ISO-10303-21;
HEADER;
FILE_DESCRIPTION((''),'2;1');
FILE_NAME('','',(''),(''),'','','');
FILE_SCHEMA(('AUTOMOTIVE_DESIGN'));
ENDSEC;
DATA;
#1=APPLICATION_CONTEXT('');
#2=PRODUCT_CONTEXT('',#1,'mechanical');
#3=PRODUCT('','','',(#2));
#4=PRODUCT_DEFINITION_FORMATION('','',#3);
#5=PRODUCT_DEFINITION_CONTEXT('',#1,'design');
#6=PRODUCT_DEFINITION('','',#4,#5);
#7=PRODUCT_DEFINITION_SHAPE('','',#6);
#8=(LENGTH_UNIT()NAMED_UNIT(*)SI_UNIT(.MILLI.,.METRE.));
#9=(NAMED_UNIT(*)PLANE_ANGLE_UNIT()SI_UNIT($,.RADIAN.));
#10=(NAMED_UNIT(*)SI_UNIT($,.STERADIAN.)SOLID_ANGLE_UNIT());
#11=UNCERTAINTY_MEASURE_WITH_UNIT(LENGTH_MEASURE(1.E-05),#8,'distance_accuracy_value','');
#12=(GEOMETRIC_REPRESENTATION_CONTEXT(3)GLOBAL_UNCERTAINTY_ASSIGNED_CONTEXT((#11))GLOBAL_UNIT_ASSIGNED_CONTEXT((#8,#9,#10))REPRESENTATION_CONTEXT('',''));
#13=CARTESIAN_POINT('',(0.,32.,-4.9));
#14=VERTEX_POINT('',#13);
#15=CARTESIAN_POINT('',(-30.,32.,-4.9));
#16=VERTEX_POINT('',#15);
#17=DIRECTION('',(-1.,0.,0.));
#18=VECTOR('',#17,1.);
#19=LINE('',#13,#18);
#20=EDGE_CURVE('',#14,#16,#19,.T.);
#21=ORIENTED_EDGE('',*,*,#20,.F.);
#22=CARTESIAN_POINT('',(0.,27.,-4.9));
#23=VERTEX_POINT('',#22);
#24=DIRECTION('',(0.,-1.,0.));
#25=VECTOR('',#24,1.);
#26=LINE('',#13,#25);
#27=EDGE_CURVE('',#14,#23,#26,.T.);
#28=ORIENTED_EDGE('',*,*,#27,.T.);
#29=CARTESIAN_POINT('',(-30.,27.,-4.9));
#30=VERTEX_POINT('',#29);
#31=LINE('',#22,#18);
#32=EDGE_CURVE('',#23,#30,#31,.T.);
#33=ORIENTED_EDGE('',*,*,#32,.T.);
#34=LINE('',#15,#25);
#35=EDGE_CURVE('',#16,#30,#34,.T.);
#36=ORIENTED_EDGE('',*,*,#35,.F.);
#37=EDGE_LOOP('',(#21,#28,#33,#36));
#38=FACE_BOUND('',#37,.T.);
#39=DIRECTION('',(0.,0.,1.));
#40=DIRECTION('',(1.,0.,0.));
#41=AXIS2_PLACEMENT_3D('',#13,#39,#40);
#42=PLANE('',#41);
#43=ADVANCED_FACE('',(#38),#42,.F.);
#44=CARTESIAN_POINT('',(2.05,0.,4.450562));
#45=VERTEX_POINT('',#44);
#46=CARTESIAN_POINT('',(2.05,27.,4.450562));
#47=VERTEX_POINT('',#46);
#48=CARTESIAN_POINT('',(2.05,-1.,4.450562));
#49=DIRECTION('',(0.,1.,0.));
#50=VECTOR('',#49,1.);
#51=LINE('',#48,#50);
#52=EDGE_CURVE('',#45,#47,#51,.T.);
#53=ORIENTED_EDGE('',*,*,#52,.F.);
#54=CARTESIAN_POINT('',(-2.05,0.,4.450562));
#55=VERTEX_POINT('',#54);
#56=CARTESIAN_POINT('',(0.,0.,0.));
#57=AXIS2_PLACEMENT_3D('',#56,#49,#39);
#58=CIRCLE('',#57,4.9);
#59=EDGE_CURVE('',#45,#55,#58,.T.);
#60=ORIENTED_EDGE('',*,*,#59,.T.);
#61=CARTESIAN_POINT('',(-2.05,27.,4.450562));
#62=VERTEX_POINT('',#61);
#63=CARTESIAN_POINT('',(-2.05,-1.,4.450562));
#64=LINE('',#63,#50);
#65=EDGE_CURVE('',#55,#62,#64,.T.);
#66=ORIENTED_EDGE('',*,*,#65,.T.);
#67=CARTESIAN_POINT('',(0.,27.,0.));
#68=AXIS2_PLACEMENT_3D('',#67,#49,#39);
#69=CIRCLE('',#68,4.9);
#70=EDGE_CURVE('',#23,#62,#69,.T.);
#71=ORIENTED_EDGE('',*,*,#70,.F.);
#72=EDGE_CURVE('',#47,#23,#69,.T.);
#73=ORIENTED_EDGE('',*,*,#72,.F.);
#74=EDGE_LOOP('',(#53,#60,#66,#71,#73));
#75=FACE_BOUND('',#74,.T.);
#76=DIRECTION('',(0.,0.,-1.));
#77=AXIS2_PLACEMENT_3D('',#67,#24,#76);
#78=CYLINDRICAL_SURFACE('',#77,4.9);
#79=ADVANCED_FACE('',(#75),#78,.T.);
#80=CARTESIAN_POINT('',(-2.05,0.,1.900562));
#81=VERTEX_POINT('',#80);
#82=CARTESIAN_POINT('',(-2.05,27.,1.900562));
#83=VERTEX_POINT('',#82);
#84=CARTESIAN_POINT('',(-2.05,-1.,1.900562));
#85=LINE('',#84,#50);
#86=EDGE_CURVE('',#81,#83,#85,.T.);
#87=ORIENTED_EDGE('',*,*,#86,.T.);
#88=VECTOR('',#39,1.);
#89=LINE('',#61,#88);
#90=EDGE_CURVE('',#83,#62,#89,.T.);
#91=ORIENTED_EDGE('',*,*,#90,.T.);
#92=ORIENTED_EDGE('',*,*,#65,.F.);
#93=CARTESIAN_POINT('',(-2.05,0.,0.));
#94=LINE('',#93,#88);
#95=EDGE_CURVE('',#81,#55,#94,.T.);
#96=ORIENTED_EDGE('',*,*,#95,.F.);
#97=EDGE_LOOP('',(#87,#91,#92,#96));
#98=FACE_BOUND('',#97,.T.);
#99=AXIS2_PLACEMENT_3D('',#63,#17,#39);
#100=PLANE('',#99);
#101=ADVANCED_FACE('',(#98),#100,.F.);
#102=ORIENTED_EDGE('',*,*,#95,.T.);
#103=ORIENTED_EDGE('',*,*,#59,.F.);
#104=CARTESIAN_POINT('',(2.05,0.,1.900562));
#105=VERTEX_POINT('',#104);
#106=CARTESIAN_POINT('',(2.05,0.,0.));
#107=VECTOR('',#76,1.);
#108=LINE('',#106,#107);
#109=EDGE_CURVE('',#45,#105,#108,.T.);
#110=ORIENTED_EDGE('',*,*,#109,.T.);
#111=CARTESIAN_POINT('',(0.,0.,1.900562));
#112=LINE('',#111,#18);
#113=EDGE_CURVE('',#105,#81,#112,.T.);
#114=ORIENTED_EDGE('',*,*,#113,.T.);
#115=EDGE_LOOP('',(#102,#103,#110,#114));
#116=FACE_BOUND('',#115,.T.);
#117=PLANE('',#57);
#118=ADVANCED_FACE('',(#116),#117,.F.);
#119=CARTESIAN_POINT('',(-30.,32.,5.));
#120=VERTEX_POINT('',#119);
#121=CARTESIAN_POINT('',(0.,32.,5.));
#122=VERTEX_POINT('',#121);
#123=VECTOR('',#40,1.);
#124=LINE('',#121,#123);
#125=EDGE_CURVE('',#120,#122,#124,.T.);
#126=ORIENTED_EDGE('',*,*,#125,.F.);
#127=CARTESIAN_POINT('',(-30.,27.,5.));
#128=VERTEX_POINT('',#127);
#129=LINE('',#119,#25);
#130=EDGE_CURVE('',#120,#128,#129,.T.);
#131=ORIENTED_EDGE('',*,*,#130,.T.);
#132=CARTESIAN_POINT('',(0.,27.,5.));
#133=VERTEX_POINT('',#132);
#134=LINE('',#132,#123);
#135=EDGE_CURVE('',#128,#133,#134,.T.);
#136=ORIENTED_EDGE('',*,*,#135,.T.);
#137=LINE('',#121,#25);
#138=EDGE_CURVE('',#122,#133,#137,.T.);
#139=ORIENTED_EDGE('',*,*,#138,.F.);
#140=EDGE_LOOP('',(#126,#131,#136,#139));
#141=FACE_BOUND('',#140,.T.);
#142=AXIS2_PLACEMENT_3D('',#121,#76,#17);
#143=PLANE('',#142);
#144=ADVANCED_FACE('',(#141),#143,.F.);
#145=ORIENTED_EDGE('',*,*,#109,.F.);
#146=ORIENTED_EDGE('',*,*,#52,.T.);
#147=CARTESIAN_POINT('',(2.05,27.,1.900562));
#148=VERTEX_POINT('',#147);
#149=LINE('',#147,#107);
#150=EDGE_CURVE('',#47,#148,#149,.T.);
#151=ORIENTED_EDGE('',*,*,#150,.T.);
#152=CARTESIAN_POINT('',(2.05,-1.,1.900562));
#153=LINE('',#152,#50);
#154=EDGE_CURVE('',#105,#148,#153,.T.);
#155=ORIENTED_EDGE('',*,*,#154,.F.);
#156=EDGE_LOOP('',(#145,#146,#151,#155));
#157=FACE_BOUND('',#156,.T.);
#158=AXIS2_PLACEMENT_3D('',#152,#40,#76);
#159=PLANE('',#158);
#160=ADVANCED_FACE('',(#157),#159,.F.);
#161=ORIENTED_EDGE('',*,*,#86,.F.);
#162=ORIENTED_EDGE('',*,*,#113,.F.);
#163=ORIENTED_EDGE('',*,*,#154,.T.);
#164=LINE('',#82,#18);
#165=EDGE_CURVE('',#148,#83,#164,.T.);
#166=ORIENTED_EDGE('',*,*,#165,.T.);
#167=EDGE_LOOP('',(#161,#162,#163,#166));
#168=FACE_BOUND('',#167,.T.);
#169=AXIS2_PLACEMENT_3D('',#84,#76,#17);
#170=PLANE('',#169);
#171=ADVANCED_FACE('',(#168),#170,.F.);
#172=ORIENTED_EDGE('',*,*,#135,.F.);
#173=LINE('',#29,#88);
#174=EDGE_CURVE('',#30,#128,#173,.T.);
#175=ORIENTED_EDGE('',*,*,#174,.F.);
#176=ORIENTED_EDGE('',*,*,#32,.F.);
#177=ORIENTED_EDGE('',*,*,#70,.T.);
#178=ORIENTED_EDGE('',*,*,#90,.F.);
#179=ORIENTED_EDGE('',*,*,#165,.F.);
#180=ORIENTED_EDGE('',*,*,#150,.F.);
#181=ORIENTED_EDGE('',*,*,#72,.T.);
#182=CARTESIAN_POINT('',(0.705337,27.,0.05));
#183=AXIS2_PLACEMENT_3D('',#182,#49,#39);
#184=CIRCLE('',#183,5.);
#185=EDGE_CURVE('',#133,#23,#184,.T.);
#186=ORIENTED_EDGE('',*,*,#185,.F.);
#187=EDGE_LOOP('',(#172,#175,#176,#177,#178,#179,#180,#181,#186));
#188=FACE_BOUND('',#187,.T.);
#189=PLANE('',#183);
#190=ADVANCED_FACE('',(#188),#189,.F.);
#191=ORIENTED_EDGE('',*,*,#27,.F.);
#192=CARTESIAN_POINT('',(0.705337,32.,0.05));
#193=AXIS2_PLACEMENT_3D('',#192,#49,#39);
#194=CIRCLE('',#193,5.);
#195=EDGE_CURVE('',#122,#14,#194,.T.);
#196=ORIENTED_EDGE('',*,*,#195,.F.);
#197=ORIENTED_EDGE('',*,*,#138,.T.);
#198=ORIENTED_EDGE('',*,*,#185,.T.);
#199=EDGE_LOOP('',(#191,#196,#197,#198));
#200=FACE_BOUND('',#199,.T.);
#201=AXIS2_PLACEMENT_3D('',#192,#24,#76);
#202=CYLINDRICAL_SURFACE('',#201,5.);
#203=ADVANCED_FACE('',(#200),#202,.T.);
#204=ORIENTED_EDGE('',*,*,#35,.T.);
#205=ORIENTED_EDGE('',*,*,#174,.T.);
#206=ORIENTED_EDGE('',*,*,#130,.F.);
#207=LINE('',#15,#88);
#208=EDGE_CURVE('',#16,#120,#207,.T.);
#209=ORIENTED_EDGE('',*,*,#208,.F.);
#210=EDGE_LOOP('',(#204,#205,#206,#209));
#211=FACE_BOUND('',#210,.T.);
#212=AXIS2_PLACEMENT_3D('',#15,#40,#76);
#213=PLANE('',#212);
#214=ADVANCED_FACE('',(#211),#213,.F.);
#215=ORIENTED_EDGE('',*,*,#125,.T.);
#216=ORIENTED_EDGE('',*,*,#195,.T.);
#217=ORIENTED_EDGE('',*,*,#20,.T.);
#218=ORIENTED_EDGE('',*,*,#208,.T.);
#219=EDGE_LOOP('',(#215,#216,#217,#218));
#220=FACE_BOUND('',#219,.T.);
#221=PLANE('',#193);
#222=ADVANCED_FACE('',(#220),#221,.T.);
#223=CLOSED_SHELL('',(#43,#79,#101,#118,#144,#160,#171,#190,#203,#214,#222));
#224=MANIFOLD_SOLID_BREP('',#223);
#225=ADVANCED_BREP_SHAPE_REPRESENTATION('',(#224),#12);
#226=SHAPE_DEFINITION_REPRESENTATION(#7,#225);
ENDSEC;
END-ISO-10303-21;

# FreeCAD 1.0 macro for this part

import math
import FreeCAD as App
import Part
import Sketcher

V = App.Vector
Q = App.Units.Quantity

doc = App.newDocument("Part")
body = doc.addObject("PartDesign::Body", "Body")

# Sketch on XZ plane
sketch1 = body.newObject("Sketcher::SketchObject", "Sketch")
sketch1.AttachmentSupport = (doc.getObject("XZ_Plane"), [""])
sketch1.MapMode = "FlatFace"
sketch1.addGeometry(Part.Circle(V(0, 0, 0), V(0, 0, 1), 4.9), False)
sketch1.addConstraint([
    Sketcher.Constraint("Coincident", 0, 3, -1, 1),
    Sketcher.Constraint("Diameter", 0, Q("9.8 mm")),
])
pad1 = body.newObject("PartDesign::Pad", "Pad")
pad1.Profile = sketch1
pad1.Length = 27
pad1.Reversed = True

# Sketch on XZ plane
sketch2 = body.newObject("Sketcher::SketchObject", "Sketch001")
sketch2.AttachmentSupport = (doc.getObject("XZ_Plane"), [""])
sketch2.MapMode = "FlatFace"
sketch2.AttachmentOffset = App.Placement(V(0, 0, 1), App.Rotation())
sketch2.addGeometry([
    Part.LineSegment(V(-2, 1.9, 0), V(-2, 4.5, 0)),
    Part.ArcOfCircle(Part.Circle(V(0, 0, 0), V(0, 0, 1), 4.9), math.radians(65), math.radians(115)),
    Part.LineSegment(V(2, 4.5, 0), V(2, 1.9, 0)),
    Part.LineSegment(V(2, 1.9, 0), V(-2, 1.9, 0)),
], False)
sketch2.addConstraint([
    Sketcher.Constraint("Coincident", 0, 2, 1, 2),
    Sketcher.Constraint("Coincident", 1, 1, 2, 1),
    Sketcher.Constraint("Coincident", 2, 2, 3, 1),
    Sketcher.Constraint("Coincident", 3, 2, 0, 1),
    Sketcher.Constraint("Vertical", 0),
    Sketcher.Constraint("Vertical", 2),
    Sketcher.Constraint("Horizontal", 3),
    Sketcher.Constraint("Coincident", 1, 3, -1, 1),
    Sketcher.Constraint("Horizontal", 0, 2, 1, 1),
    Sketcher.Constraint("Radius", 1, Q("4.9 mm")),
    Sketcher.Constraint("DistanceX", 3, 2, 3, 1, Q("4.1 mm")),
    Sketcher.Constraint("DistanceY", 0, 1, 0, 2, Q("2.55 mm")),
])
pocket1 = body.newObject("PartDesign::Pocket", "Pocket")
pocket1.Profile = sketch2
pocket1.Length = 28

# Sketch on XZ plane
sketch3 = body.newObject("Sketcher::SketchObject", "Sketch002")
sketch3.AttachmentSupport = (doc.getObject("XZ_Plane"), [""])
sketch3.MapMode = "FlatFace"
sketch3.AttachmentOffset = App.Placement(V(0, 0, -27), App.Rotation())
sketch3.addGeometry([
    Part.LineSegment(V(0, -5, 0), V(-30, -5, 0)),
    Part.LineSegment(V(-30, -5, 0), V(-30, 5, 0)),
    Part.LineSegment(V(-30, 5, 0), V(0, 5, 0)),
    Part.ArcOfCircle(Part.Circle(V(1, 0, 0), V(0, 0, 1), 5), math.radians(-98), math.radians(98)),
], False)
sketch3.addConstraint([
    Sketcher.Constraint("Coincident", 0, 2, 1, 1),
    Sketcher.Constraint("Coincident", 1, 2, 2, 1),
    Sketcher.Constraint("Coincident", 2, 2, 3, 2),
    Sketcher.Constraint("Coincident", 3, 1, 0, 1),
    Sketcher.Constraint("Horizontal", 0),
    Sketcher.Constraint("Vertical", 1),
    Sketcher.Constraint("Horizontal", 2),
    Sketcher.Constraint("PointOnObject", 2, 2, -2),
    Sketcher.Constraint("PointOnObject", 3, 1, -2),
    Sketcher.Constraint("Radius", 3, Q("5 mm")),
    Sketcher.Constraint("DistanceX", 0, 2, 0, 1, Q("30 mm")),
    Sketcher.Constraint("DistanceY", 1, 1, 1, 2, Q("9.9 mm")),
    Sketcher.Constraint("DistanceY", -1, 1, 1, 2, Q("5 mm")),
])
pad2 = body.newObject("PartDesign::Pad", "Pad001")
pad2.Profile = sketch3
pad2.Length = 5
pad2.Reversed = True

doc.recompute()
